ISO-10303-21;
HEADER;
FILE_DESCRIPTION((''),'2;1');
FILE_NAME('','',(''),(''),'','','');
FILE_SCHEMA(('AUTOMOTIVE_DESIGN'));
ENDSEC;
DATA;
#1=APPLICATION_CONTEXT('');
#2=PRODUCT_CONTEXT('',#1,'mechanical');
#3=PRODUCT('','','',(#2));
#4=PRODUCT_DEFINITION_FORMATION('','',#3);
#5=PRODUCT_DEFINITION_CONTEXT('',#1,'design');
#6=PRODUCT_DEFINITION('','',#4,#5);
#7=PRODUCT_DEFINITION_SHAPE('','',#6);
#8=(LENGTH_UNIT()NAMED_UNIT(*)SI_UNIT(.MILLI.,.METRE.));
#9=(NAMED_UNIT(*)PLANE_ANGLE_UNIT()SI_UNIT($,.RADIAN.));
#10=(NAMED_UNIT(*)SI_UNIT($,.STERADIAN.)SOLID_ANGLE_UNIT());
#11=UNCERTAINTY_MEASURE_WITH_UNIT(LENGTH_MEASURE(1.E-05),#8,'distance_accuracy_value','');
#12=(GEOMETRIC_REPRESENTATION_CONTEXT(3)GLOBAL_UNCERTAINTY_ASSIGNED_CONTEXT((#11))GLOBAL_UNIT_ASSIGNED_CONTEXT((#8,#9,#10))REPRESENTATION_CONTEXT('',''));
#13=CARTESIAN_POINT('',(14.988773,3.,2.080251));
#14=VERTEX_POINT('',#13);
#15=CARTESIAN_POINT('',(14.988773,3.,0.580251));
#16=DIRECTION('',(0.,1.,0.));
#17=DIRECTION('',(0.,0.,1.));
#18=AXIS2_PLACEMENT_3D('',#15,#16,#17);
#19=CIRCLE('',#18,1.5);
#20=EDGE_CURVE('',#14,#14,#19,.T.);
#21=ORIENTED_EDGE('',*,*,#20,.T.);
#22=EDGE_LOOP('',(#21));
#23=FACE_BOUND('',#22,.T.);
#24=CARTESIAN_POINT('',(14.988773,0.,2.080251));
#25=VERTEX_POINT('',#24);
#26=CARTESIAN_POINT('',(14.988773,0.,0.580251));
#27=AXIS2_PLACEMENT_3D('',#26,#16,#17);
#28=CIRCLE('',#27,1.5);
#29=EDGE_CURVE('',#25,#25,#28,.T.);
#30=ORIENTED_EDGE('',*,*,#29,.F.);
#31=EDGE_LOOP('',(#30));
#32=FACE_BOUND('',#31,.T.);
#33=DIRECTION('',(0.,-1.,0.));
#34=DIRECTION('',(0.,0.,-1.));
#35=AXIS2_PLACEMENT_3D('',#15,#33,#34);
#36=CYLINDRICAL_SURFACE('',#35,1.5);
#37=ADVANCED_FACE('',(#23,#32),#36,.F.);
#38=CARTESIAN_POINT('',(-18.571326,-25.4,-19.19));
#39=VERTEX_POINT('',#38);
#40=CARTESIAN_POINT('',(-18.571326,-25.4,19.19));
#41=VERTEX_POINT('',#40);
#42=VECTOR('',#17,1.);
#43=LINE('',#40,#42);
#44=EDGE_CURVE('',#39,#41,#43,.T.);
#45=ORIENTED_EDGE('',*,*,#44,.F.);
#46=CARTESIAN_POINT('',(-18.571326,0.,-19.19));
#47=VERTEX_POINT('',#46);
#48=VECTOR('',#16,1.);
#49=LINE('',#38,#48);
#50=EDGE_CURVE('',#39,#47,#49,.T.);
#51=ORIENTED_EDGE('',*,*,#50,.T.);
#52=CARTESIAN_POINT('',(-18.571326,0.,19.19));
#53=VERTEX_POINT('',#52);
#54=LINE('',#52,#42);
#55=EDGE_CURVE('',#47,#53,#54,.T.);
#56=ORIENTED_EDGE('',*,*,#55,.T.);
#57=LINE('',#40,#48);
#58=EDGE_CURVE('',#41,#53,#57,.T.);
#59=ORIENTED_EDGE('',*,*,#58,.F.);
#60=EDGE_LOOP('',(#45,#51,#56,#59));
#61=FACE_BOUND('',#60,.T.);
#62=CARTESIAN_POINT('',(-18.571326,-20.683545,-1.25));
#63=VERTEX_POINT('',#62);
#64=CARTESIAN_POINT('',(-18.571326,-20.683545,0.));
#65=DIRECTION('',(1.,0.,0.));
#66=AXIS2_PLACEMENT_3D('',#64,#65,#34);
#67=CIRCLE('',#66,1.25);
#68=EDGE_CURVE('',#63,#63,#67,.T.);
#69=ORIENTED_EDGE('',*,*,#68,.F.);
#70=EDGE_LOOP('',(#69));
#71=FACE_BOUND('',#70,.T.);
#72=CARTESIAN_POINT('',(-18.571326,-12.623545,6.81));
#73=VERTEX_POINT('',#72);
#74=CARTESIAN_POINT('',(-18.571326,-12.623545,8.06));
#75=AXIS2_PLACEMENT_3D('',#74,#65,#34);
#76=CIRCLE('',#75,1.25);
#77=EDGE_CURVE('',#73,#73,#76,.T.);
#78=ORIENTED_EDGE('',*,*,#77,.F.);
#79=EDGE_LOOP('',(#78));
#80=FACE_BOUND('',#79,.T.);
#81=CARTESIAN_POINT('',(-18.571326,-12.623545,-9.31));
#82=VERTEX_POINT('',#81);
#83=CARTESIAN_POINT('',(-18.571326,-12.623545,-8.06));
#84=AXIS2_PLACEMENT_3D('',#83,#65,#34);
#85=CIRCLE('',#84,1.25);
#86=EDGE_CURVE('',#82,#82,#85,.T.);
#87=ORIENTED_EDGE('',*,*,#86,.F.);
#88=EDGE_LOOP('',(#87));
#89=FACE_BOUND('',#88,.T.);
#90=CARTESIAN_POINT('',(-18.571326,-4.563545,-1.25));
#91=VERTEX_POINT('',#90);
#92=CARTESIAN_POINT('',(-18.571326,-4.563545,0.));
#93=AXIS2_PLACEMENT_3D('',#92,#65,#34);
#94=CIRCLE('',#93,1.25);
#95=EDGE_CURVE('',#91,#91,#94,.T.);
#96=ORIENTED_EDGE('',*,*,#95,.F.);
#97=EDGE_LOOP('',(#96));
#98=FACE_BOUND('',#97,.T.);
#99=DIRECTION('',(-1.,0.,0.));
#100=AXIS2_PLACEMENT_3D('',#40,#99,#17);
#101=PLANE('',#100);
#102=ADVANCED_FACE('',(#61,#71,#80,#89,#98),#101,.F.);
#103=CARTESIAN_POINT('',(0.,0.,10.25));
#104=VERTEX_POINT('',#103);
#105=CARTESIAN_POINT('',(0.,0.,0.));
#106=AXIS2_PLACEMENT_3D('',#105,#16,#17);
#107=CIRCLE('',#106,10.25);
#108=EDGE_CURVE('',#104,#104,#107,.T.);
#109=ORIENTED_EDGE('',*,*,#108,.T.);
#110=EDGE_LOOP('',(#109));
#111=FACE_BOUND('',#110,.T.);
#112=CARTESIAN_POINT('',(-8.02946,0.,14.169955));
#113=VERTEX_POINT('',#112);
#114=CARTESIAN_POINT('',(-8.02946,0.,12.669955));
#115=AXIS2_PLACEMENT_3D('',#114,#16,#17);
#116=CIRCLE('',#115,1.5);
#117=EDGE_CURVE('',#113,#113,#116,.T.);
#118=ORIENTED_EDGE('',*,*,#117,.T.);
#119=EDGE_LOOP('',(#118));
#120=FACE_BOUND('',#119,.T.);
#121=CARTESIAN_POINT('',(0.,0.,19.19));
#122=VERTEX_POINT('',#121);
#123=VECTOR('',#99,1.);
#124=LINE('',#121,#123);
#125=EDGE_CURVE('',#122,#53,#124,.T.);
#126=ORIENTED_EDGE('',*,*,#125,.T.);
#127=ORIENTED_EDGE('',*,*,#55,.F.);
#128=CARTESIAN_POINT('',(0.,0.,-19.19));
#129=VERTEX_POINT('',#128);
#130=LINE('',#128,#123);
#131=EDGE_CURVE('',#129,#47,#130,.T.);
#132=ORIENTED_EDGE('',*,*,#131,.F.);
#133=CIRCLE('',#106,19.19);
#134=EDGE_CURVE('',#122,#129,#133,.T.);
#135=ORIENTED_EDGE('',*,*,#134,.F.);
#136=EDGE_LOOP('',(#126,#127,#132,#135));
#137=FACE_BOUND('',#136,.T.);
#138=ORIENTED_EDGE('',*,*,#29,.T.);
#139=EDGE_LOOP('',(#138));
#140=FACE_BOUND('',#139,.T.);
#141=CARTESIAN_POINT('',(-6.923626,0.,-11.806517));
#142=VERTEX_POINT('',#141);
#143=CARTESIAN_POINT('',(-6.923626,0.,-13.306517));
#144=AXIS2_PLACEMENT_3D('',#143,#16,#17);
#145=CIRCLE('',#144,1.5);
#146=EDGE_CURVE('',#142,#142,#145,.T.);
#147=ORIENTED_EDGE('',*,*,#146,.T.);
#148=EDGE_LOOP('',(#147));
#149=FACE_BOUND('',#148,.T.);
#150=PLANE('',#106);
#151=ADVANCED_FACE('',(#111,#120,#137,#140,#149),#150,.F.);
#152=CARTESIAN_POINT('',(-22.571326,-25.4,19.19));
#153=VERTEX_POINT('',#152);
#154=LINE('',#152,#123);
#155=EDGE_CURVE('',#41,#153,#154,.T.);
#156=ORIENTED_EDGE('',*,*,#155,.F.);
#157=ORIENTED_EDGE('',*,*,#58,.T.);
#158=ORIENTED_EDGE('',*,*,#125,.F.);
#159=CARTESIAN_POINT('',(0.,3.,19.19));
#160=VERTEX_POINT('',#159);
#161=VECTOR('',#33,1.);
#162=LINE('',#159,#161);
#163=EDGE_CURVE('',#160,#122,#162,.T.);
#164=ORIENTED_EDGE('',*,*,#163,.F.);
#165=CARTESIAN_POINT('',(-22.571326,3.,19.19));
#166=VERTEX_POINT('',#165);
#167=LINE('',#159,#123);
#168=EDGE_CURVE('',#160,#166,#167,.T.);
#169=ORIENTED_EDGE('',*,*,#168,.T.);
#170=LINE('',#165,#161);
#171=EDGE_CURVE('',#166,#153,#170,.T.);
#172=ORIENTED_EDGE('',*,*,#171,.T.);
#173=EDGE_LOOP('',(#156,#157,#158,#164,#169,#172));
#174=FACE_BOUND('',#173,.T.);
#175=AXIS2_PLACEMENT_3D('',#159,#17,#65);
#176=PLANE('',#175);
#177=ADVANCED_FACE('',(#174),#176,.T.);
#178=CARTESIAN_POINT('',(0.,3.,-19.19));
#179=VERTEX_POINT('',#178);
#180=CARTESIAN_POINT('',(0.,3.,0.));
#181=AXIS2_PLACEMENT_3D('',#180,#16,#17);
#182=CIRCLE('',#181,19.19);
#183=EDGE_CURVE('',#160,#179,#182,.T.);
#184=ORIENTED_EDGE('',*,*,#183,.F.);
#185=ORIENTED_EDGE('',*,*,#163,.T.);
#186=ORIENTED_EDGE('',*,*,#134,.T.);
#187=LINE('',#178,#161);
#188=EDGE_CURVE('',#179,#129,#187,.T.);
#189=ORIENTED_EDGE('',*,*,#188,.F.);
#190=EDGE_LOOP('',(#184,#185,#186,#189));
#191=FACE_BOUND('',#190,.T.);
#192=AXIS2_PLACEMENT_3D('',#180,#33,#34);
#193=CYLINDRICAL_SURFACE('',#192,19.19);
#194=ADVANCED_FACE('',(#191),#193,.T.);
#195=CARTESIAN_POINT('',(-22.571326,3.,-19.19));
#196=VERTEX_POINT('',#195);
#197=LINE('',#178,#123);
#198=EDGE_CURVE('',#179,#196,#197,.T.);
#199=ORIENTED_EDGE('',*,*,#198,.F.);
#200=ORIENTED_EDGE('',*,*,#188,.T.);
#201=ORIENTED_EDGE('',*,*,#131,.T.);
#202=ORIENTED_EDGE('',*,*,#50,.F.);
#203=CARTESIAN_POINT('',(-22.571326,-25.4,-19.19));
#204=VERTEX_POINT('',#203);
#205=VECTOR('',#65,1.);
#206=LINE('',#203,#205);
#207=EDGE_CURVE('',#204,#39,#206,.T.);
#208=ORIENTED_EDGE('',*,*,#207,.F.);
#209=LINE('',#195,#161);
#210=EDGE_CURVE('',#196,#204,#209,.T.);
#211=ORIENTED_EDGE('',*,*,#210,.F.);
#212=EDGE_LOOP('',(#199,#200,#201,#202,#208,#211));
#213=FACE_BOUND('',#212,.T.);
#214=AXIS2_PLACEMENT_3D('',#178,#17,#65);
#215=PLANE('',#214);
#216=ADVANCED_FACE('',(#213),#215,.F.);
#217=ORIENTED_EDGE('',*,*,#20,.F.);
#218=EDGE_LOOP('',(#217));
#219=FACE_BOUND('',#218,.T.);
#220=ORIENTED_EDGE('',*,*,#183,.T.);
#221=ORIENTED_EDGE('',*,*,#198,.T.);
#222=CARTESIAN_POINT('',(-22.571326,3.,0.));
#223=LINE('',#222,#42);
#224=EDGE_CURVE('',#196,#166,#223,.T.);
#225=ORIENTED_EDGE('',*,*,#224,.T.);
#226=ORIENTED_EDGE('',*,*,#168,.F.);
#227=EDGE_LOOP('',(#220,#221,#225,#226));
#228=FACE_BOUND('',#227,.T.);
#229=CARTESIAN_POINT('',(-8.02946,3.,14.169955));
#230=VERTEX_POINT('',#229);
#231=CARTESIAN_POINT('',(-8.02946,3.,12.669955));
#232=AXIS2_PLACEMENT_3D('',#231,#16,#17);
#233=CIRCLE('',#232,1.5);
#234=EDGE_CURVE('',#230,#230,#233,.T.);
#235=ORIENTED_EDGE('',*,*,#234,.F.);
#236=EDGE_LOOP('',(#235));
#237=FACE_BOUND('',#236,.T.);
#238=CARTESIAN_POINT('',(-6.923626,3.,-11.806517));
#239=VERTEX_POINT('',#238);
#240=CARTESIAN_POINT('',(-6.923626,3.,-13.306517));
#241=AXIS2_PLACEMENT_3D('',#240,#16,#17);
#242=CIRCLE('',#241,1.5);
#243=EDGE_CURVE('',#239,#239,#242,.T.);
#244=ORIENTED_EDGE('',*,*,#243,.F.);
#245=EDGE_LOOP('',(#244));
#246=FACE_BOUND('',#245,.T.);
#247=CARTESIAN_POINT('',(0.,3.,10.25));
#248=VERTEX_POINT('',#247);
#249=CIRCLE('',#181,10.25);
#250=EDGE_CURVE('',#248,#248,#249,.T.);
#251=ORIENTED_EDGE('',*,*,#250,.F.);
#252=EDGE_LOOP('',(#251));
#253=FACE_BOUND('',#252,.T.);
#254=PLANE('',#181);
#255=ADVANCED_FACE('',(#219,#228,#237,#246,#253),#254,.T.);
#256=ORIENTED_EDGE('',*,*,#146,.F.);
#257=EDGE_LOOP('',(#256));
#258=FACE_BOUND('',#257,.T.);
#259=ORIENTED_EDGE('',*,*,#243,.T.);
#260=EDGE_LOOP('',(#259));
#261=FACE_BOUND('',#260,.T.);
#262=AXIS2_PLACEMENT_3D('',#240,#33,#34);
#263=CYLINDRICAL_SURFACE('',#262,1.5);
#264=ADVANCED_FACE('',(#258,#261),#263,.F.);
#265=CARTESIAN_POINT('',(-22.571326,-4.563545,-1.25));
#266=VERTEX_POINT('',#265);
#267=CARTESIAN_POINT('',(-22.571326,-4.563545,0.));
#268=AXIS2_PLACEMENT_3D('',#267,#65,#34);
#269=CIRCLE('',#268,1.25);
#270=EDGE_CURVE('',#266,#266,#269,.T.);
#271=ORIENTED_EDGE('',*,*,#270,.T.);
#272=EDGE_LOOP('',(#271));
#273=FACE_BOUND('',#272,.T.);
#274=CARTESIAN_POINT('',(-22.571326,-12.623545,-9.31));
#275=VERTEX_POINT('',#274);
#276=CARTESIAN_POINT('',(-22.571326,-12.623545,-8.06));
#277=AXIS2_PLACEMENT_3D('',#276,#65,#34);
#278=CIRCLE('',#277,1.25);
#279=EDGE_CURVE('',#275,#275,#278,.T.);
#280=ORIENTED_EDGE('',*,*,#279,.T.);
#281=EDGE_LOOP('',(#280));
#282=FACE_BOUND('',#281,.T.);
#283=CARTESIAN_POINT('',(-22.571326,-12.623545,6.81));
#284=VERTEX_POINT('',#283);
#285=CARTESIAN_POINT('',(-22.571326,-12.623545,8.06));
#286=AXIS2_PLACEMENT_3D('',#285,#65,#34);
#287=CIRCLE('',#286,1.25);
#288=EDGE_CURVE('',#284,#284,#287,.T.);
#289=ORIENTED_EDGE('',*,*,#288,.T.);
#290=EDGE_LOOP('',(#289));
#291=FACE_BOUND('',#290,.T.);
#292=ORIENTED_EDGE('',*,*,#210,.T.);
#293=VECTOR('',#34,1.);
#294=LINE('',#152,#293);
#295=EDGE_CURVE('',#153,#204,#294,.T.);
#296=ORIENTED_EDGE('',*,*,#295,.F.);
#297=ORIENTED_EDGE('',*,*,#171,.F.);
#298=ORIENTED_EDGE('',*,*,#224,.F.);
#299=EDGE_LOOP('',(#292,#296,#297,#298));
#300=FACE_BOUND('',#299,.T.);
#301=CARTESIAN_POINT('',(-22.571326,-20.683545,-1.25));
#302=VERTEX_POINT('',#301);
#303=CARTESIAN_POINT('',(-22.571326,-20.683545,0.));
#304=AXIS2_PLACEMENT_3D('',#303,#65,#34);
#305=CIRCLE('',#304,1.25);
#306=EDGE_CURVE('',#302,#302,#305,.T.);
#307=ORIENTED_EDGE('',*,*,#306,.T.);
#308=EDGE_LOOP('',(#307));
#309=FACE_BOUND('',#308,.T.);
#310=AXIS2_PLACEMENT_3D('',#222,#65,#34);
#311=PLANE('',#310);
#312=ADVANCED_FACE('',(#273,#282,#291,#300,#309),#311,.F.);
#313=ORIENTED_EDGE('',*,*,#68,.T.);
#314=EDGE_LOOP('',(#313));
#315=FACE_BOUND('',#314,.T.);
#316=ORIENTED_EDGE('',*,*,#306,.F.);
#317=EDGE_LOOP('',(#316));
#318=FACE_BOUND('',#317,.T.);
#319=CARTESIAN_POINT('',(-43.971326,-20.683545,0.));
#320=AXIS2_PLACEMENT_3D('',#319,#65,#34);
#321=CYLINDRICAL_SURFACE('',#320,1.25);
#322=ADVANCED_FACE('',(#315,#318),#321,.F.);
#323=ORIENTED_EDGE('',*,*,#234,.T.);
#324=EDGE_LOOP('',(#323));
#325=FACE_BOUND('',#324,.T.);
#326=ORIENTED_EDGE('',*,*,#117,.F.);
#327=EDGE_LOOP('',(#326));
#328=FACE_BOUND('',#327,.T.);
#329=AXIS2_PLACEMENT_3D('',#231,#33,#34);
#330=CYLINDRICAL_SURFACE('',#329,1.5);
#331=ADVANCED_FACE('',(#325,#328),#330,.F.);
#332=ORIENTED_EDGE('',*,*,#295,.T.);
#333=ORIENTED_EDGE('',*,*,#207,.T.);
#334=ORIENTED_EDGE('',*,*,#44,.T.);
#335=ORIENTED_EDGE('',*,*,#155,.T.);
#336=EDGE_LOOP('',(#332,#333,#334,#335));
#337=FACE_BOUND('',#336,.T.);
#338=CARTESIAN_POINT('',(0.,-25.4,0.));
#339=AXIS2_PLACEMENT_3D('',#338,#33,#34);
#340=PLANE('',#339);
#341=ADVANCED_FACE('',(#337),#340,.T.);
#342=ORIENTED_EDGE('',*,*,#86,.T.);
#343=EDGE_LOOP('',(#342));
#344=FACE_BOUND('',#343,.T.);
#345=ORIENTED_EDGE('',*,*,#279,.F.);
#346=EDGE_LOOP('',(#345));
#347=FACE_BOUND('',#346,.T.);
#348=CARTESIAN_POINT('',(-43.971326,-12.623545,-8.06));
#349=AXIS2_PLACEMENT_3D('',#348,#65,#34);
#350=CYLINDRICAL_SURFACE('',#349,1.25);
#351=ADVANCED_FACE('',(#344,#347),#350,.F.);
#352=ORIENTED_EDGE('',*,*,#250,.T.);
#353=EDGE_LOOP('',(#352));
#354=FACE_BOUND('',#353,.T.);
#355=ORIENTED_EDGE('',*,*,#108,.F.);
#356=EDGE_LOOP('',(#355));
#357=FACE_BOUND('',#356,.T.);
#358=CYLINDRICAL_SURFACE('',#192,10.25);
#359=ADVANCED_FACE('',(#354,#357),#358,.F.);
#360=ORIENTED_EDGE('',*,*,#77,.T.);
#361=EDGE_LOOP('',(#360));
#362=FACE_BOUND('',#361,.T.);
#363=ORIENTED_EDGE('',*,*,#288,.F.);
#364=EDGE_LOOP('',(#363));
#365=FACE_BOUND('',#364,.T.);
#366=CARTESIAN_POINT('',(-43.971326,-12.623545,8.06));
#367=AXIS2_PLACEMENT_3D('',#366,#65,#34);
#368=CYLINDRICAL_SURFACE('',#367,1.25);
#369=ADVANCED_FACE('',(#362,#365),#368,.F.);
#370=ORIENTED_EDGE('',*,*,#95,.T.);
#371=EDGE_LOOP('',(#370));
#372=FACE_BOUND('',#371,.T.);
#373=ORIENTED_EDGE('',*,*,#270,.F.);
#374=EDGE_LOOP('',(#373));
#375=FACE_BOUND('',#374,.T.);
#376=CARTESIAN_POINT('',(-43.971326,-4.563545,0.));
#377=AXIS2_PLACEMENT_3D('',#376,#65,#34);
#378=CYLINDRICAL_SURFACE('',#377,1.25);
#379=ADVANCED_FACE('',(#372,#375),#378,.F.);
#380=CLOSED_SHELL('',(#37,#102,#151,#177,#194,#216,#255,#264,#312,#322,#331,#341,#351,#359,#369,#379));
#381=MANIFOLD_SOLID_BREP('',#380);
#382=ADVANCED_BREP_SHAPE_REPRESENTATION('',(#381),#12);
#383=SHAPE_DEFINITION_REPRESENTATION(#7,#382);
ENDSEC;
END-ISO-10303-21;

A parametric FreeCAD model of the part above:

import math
import FreeCAD as App
import Part
import Sketcher
from FreeCAD import Vector

doc = App.newDocument("Part")
body = doc.addObject("PartDesign::Body", "Body")

# Sketch on XZ plane
sketch1 = doc.addObject("Sketcher::SketchObject", "Sketch")
body.addObject(sketch1)
sketch1.AttachmentSupport = (doc.XZ_Plane, [""])
sketch1.MapMode = "FlatFace"
sketch1.addGeometry([
    Part.LineSegment(Vector(-22.6, 19.2, 0), Vector(0, 19.2, 0)),  # 0
    Part.ArcOfCircle(Part.Circle(Vector(0, 0, 0), Vector(0, 0, 1), 19.2), math.radians(-90), math.radians(90)),  # 1
    Part.LineSegment(Vector(0, -19.2, 0), Vector(-22.6, -19.2, 0)),  # 2
    Part.LineSegment(Vector(-22.6, -19.2, 0), Vector(-22.6, 19.2, 0)),  # 3
    Part.Circle(Vector(-8, 12.7, 0), Vector(0, 0, 1), 1.5),  # 4
    Part.Circle(Vector(0, 0, 0), Vector(0, 0, 1), 10.2),  # 5
    Part.Circle(Vector(15, 0.6, 0), Vector(0, 0, 1), 1.5),  # 6
    Part.Circle(Vector(-6.9, -13.3, 0), Vector(0, 0, 1), 1.5),  # 7
], False)
sketch1.addConstraint([
    Sketcher.Constraint("Tangent", 0, 2, 1, 2),
    Sketcher.Constraint("Tangent", 1, 1, 2, 1),
    Sketcher.Constraint("Coincident", 2, 2, 3, 1),
    Sketcher.Constraint("Coincident", 3, 2, 0, 1),
    Sketcher.Constraint("Horizontal", 0),
    Sketcher.Constraint("Horizontal", 2),
    Sketcher.Constraint("Vertical", 3),
    Sketcher.Constraint("Coincident", 1, 3, -1, 1),
    Sketcher.Constraint("Coincident", 5, 3, -1, 1),
    Sketcher.Constraint("Equal", 4, 6),
    Sketcher.Constraint("Equal", 6, 7),
    Sketcher.Constraint("Diameter", 4, 3.0),
    Sketcher.Constraint("Diameter", 5, 20.5),
    Sketcher.Constraint("Radius", 1, 19.19),
    Sketcher.Constraint("DistanceX", 7, 3, 6, 3, 21.912399),
    Sketcher.Constraint("DistanceX", 2, 2, 7, 3, 15.6477),
    Sketcher.Constraint("DistanceX", 0, 1, 0, 2, 22.571326),
    Sketcher.Constraint("DistanceX", 4, 3, -1, 1, 8.02946),
    Sketcher.Constraint("DistanceY", -1, 1, 6, 3, 0.580251),
    Sketcher.Constraint("DistanceY", 7, 3, 6, 3, 13.886768),
    Sketcher.Constraint("DistanceY", -1, 1, 4, 3, 12.669955),
])
pad1 = doc.addObject("PartDesign::Pad", "Pad")
body.addObject(pad1)
pad1.Profile = sketch1
pad1.Length = 3
pad1.Reversed = True

# Sketch on XZ plane
sketch2 = doc.addObject("Sketcher::SketchObject", "Sketch001")
body.addObject(sketch2)
sketch2.AttachmentSupport = (doc.XZ_Plane, [""])
sketch2.MapMode = "FlatFace"
sketch2.addGeometry([
    Part.LineSegment(Vector(-22.6, 19.2, 0), Vector(-22.6, -19.2, 0)),
    Part.LineSegment(Vector(-22.6, -19.2, 0), Vector(-18.6, -19.2, 0)),
    Part.LineSegment(Vector(-18.6, -19.2, 0), Vector(-18.6, 19.2, 0)),
    Part.LineSegment(Vector(-18.6, 19.2, 0), Vector(-22.6, 19.2, 0)),
], False)
sketch2.addConstraint([
    Sketcher.Constraint("Coincident", 0, 2, 1, 1),
    Sketcher.Constraint("Coincident", 1, 2, 2, 1),
    Sketcher.Constraint("Coincident", 2, 2, 3, 1),
    Sketcher.Constraint("Coincident", 3, 2, 0, 1),
    Sketcher.Constraint("Vertical", 0),
    Sketcher.Constraint("Horizontal", 1),
    Sketcher.Constraint("Vertical", 2),
    Sketcher.Constraint("Horizontal", 3),
    Sketcher.Constraint("DistanceX", 1, 1, 1, 2, 4.0),
    Sketcher.Constraint("DistanceY", 0, 2, 0, 1, 38.38),
    Sketcher.Constraint("DistanceY", 0, 2, -1, 1, 19.19),
    Sketcher.Constraint("DistanceX", 0, 2, -1, 1, 22.571326),
])
pad2 = doc.addObject("PartDesign::Pad", "Pad001")
body.addObject(pad2)
pad2.Profile = sketch2
pad2.Length = 25.4

# Sketch on YZ plane
sketch3 = doc.addObject("Sketcher::SketchObject", "Sketch002")
body.addObject(sketch3)
sketch3.AttachmentSupport = (doc.YZ_Plane, [""])
sketch3.MapMode = "FlatFace"
sketch3.AttachmentOffset = App.Placement(Vector(0, 0, -18.571326), App.Rotation())
sketch3.addGeometry([
    Part.Circle(Vector(-4.6, 0, 0), Vector(0, 0, 1), 1.2),
    Part.Circle(Vector(-12.6, 8.1, 0), Vector(0, 0, 1), 1.2),
    Part.Circle(Vector(-20.7, 0, 0), Vector(0, 0, 1), 1.2),
    Part.Circle(Vector(-12.6, -8.1, 0), Vector(0, 0, 1), 1.2),
], False)
sketch3.addConstraint([
    Sketcher.Constraint("Equal", 0, 1),
    Sketcher.Constraint("Equal", 1, 2),
    Sketcher.Constraint("Equal", 2, 3),
    Sketcher.Constraint("Symmetric", 1, 3, 3, 3, -1),
    Sketcher.Constraint("PointOnObject", 0, 3, -1),
    Sketcher.Constraint("PointOnObject", 2, 3, -1),
    Sketcher.Constraint("Diameter", 0, 2.5),
    Sketcher.Constraint("DistanceY", -1, 1, 1, 3, 8.06),
    Sketcher.Constraint("DistanceX", 1, 3, 0, 3, 8.06),
    Sketcher.Constraint("DistanceX", 2, 3, 1, 3, 8.06),
    Sketcher.Constraint("DistanceX", 0, 3, -1, 1, 4.563545),
])
pocket1 = doc.addObject("PartDesign::Pocket", "Pocket")
body.addObject(pocket1)
pocket1.Profile = sketch3
pocket1.Length = 25.4

doc.recompute()
